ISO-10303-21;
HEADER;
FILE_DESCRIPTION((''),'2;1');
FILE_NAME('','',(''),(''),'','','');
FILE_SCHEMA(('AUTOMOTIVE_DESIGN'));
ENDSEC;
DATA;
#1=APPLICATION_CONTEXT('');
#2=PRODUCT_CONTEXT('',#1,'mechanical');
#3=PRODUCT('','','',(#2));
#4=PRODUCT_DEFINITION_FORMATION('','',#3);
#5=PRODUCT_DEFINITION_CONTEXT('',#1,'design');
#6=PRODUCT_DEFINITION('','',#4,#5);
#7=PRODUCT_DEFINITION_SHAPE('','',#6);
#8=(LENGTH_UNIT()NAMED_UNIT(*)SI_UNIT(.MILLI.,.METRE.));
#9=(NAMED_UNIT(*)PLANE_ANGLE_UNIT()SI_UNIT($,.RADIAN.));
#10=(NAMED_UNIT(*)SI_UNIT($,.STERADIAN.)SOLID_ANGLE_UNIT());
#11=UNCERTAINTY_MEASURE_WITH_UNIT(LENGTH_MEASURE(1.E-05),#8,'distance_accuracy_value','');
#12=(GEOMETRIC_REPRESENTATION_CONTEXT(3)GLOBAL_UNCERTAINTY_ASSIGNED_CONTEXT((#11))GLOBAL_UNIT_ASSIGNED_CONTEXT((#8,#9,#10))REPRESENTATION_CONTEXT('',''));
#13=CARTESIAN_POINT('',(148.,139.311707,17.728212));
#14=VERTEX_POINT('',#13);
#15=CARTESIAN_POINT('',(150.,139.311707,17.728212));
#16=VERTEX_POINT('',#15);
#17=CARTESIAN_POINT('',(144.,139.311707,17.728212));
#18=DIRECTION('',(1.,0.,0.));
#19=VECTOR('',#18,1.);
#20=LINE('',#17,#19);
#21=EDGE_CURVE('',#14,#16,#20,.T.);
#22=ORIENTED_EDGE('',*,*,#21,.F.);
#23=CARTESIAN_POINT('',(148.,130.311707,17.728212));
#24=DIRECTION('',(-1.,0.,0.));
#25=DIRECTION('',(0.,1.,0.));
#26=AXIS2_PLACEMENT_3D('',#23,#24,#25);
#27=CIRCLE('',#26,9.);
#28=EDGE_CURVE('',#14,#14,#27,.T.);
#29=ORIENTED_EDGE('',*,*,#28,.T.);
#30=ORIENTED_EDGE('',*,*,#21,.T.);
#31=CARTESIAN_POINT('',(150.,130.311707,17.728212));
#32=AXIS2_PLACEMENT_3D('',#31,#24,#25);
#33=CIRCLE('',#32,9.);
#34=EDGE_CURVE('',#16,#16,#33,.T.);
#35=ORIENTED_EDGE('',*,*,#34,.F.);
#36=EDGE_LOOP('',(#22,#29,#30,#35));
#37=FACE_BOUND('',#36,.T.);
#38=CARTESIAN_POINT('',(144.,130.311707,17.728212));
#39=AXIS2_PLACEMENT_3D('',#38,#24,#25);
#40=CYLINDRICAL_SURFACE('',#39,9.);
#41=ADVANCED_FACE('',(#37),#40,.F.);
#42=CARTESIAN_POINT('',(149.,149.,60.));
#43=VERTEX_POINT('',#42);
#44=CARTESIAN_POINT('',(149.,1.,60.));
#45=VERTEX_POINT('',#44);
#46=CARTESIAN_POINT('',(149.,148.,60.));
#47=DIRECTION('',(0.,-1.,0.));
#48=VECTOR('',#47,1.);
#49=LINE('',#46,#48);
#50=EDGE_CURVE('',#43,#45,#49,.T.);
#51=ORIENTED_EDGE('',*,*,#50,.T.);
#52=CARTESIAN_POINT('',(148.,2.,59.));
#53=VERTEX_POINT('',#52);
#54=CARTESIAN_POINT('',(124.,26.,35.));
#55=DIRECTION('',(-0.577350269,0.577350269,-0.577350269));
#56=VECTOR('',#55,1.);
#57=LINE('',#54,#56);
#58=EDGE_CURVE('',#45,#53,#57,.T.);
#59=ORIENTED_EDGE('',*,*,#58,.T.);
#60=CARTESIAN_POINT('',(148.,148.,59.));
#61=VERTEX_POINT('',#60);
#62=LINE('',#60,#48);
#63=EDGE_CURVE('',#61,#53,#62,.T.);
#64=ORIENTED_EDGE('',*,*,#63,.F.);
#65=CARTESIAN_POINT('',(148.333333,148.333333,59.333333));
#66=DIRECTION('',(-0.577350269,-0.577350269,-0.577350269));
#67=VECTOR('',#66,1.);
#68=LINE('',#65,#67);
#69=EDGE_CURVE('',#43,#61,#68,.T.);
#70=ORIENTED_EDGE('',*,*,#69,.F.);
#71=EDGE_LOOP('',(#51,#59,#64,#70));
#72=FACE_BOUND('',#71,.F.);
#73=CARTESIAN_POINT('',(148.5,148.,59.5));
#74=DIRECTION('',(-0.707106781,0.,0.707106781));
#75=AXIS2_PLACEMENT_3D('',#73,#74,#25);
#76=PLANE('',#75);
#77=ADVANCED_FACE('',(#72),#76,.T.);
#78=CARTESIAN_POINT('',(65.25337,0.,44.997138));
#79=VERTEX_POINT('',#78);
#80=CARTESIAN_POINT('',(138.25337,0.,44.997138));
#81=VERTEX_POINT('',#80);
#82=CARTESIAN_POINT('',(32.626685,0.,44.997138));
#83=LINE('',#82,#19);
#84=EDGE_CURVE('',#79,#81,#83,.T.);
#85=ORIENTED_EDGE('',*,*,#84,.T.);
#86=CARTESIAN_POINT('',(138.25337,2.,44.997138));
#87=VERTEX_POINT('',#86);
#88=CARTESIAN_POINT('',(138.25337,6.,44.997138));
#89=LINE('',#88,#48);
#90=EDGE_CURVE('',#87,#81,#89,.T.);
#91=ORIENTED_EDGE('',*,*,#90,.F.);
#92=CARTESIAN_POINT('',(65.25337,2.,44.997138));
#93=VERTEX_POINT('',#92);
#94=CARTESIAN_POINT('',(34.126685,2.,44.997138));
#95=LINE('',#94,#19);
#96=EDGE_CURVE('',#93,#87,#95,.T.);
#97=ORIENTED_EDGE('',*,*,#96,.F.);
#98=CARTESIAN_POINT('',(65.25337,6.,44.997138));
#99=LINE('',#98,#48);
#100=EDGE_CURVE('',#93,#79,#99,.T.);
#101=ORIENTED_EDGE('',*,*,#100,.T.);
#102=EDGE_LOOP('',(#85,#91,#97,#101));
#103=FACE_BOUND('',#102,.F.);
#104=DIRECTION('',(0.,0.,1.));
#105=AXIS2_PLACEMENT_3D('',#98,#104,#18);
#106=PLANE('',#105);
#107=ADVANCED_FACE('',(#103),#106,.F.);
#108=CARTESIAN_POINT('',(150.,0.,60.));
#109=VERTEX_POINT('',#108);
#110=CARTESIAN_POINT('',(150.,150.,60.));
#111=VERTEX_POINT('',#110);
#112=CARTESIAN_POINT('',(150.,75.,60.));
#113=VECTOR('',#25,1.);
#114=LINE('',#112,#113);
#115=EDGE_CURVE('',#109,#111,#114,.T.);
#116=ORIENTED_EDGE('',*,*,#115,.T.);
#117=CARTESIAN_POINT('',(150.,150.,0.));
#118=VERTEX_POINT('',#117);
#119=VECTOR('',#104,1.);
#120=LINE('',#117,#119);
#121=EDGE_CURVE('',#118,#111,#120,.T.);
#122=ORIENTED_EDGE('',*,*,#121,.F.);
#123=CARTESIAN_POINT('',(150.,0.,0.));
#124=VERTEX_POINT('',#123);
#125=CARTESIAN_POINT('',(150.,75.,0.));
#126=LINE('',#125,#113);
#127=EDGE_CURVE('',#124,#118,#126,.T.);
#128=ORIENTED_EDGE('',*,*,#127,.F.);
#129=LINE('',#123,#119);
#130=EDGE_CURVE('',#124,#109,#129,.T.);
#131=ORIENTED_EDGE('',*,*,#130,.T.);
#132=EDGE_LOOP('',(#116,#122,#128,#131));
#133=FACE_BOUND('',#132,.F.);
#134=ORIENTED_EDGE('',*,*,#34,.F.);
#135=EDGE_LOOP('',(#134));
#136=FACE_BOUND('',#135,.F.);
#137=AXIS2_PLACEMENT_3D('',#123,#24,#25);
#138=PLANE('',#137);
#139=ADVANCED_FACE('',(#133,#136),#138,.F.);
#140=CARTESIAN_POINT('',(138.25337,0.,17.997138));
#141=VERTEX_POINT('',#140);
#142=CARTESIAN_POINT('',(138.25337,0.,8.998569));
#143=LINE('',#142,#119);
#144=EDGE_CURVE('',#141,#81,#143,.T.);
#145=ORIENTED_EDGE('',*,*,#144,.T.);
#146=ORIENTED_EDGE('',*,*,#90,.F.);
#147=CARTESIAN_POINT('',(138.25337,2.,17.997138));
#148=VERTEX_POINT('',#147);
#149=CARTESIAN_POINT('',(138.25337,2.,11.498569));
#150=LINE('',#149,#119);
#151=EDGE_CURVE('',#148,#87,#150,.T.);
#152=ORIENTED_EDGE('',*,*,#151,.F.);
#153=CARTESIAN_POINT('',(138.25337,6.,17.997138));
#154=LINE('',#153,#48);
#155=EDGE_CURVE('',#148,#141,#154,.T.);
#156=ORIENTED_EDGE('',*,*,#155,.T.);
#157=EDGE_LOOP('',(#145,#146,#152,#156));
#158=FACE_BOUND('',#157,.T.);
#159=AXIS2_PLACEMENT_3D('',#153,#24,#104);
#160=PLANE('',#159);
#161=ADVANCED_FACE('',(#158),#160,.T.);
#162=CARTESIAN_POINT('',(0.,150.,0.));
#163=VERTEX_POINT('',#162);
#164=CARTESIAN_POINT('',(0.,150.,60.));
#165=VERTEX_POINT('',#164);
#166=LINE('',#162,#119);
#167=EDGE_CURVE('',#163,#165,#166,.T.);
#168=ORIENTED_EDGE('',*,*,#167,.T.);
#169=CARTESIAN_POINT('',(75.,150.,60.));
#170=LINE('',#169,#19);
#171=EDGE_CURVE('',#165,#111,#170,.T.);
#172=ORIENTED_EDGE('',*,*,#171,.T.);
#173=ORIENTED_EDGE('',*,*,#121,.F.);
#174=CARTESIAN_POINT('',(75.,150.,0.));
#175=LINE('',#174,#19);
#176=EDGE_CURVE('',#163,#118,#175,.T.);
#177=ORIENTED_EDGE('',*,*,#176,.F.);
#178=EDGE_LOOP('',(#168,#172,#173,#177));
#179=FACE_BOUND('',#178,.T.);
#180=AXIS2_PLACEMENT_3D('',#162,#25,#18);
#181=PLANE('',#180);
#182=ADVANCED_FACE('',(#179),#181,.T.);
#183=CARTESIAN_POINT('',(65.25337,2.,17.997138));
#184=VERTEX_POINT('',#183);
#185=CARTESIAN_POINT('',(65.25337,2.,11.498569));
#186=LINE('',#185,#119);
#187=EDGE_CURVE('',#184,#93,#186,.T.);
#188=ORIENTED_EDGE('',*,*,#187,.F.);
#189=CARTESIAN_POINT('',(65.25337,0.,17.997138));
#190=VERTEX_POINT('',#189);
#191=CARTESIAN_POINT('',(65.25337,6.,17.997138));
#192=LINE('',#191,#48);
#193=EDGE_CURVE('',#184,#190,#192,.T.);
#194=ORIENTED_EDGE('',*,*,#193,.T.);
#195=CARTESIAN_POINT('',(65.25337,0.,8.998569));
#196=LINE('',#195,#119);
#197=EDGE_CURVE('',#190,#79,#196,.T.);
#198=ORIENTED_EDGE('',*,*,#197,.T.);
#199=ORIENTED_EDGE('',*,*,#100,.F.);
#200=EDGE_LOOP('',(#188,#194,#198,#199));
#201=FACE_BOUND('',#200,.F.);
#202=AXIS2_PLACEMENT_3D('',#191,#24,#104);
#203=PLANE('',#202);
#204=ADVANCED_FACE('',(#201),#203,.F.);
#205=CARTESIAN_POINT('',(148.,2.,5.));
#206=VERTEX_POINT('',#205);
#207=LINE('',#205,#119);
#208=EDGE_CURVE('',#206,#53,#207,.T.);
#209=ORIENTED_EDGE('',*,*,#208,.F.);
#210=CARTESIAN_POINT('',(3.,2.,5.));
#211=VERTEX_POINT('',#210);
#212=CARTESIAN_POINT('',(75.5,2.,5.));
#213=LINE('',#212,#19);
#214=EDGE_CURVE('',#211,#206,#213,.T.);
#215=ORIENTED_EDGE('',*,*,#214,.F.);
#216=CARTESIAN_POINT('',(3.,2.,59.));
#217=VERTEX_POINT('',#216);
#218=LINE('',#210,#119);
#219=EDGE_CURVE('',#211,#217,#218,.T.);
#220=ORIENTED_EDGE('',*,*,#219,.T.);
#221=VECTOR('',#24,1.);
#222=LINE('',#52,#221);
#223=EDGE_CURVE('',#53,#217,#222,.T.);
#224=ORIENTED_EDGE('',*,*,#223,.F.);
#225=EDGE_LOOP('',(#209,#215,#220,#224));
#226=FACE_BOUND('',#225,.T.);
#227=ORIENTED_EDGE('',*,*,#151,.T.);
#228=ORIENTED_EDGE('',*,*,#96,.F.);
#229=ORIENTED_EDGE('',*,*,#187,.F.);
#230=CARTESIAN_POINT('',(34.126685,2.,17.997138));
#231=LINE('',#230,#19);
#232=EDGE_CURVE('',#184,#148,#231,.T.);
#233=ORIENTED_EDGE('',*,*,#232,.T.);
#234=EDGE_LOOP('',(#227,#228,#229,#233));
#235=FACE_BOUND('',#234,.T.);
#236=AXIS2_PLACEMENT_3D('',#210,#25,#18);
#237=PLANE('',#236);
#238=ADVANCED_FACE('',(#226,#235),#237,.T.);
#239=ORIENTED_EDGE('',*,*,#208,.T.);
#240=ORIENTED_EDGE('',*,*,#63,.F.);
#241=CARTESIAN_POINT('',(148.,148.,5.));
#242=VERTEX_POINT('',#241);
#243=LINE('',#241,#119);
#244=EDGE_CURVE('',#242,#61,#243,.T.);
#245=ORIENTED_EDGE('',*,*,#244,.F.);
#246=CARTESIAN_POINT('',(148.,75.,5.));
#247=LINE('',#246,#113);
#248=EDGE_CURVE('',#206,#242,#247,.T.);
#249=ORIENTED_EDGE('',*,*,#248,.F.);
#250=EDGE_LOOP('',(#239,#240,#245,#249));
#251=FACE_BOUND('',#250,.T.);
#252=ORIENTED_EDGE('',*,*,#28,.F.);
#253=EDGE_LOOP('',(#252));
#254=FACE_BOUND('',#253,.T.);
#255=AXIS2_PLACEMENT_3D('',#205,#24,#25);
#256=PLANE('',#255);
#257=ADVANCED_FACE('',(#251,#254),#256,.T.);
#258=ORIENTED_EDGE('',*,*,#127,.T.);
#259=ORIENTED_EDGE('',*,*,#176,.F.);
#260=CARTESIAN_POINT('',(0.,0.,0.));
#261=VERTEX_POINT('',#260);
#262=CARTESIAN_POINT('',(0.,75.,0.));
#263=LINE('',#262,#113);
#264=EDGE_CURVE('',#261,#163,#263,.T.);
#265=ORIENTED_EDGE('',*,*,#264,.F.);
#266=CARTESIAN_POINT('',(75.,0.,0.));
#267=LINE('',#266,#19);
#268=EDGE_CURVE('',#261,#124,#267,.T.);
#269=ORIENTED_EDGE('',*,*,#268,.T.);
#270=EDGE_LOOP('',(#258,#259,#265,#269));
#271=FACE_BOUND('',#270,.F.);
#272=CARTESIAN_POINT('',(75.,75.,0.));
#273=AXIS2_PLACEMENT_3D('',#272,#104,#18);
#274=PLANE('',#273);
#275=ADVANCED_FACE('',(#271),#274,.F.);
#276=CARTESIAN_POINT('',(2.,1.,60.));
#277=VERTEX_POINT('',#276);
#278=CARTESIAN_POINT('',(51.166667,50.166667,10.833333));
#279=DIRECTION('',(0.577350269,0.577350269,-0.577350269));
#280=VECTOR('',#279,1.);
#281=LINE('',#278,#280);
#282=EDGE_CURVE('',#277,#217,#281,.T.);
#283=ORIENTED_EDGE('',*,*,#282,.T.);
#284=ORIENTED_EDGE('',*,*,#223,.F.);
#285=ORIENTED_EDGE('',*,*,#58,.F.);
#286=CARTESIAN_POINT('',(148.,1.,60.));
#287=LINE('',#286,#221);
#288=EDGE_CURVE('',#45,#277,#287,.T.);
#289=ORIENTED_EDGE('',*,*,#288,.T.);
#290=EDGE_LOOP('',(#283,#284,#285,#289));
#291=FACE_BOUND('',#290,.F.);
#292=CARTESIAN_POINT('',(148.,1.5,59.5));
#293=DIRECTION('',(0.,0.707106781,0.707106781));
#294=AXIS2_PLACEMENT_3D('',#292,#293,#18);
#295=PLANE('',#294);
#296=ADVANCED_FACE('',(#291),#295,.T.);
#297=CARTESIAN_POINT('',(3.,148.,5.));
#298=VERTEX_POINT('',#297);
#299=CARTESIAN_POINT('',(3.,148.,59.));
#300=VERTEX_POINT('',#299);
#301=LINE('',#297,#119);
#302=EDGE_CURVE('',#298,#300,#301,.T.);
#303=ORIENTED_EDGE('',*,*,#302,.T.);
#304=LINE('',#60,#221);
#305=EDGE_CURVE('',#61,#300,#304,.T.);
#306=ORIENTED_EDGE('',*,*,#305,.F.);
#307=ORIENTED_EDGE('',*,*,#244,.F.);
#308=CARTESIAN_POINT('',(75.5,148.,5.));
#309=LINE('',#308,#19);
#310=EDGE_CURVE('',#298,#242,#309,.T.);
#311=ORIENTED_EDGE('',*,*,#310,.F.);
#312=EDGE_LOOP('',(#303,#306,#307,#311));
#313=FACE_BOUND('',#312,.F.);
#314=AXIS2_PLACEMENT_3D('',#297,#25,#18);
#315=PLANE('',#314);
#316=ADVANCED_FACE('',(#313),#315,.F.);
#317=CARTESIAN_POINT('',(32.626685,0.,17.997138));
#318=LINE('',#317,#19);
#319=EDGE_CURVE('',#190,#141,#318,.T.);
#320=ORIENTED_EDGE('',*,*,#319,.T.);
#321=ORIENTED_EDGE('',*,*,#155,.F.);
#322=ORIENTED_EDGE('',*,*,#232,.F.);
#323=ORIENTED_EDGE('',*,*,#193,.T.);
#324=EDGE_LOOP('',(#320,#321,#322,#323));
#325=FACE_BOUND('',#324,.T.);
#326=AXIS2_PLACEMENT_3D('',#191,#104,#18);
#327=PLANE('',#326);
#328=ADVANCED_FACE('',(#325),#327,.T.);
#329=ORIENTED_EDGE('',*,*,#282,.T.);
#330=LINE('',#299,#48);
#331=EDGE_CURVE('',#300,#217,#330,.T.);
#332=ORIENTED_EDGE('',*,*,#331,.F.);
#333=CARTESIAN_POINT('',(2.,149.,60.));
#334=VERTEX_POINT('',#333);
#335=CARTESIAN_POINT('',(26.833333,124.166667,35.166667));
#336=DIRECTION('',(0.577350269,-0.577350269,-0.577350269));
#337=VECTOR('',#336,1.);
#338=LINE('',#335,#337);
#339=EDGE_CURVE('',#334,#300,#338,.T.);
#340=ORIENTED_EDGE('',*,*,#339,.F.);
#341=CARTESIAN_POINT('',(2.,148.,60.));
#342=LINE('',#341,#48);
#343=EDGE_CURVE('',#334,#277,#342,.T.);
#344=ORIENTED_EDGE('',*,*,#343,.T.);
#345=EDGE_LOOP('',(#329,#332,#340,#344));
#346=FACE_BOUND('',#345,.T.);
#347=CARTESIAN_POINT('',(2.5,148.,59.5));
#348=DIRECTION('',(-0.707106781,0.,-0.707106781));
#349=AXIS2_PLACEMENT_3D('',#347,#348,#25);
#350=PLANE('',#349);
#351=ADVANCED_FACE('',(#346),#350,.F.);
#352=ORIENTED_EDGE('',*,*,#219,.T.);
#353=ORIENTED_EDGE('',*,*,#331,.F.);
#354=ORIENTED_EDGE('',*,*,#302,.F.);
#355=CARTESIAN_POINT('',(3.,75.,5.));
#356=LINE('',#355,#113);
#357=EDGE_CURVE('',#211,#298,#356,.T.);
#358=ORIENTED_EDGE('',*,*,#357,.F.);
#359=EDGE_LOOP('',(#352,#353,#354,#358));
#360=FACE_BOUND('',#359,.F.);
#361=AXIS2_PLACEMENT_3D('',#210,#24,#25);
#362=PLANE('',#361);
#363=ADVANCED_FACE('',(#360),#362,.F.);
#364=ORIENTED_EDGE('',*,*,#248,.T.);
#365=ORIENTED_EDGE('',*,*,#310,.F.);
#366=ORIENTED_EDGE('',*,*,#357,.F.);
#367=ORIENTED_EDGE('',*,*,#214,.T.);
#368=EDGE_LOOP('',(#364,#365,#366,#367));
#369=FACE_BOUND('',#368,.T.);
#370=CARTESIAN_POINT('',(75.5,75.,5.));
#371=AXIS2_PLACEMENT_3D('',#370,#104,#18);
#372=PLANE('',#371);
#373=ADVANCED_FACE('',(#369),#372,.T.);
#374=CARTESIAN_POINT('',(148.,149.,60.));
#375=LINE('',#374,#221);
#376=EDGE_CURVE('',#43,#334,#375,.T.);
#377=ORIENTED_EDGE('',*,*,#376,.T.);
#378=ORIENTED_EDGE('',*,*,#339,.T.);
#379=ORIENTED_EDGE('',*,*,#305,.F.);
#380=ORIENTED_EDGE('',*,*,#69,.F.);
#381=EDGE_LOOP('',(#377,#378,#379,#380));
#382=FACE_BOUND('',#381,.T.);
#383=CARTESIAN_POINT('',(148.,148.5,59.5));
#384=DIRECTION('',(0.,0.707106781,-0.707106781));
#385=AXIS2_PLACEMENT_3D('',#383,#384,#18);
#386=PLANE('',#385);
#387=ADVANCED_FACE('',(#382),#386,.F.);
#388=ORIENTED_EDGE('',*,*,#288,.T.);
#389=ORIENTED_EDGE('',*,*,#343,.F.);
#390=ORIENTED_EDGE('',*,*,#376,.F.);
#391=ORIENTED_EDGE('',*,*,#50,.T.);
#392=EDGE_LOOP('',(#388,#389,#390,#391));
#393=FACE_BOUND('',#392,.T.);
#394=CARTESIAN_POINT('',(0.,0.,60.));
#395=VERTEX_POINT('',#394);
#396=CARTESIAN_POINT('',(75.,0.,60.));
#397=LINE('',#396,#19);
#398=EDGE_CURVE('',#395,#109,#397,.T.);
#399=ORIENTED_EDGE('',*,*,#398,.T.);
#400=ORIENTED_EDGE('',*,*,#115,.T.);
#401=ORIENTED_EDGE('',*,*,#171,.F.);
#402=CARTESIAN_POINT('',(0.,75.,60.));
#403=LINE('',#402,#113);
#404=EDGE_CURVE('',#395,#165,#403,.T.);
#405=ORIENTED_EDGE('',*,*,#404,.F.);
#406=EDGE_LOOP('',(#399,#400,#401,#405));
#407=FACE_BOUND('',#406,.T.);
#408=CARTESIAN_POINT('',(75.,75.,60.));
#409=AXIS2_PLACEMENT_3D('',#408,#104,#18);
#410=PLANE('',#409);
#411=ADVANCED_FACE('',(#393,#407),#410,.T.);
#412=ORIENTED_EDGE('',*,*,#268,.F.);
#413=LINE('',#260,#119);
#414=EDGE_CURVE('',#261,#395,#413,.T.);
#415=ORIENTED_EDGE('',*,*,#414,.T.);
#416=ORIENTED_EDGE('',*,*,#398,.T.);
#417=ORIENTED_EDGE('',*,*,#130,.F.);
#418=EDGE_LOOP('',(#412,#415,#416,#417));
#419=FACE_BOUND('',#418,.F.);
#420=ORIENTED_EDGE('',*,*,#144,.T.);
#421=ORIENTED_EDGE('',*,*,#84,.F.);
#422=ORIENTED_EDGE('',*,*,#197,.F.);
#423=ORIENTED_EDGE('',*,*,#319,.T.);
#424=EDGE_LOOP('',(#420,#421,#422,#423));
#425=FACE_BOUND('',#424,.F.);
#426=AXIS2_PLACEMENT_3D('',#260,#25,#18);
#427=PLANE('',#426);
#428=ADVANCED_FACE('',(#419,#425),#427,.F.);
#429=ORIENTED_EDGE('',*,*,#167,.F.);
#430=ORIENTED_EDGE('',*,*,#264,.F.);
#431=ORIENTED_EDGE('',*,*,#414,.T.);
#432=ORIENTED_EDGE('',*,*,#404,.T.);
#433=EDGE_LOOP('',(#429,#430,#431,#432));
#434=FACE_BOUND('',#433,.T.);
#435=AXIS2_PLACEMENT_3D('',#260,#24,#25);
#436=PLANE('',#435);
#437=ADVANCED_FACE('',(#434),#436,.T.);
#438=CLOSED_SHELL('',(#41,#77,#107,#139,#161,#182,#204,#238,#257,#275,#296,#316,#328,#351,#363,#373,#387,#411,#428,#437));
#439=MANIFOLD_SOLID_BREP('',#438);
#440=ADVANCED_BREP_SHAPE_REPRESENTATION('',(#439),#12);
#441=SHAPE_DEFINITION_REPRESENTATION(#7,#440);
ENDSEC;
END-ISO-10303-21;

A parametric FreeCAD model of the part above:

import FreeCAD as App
import Part
import Sketcher
from FreeCAD import Vector


def edges_at(feature, points):
    """Names of the edges that pass closest to the given points."""
    edges = feature.Shape.Edges
    near = lambda p: min(range(len(edges)), key=lambda i: edges[i].distToShape(Part.Vertex(*p))[0])
    return sorted({f"Edge{near(p) + 1}" for p in points})

doc = App.newDocument("Part")
body = doc.addObject("PartDesign::Body", "Body")

# Sketch on YZ plane
sketch1 = body.newObject("Sketcher::SketchObject", "Sketch")
sketch1.AttachmentSupport = (doc.getObject("YZ_Plane"), [""])
sketch1.MapMode = "FlatFace"
sketch1.AttachmentOffset = App.Placement(Vector(0, 0, 150), App.Rotation())
sketch1.addGeometry(Part.Circle(Vector(129, 13, 0), Vector(0, 0, 1), 9), False)
sketch1.addConstraint(Sketcher.Constraint("Diameter", 0, 18.0))
sketch1.addConstraint(Sketcher.Constraint("DistanceY", -1, 1, 0, 3, 12.728212))
sketch1.addConstraint(Sketcher.Constraint("DistanceX", -1, 1, 0, 3, 129.311707))
pad1 = body.newObject("PartDesign::Pad", "Pad")
pad1.Profile = sketch1
pad1.Length = 10
body2 = doc.addObject("PartDesign::Body", "Body001")
doc.recompute()

body.Placement = App.Placement(Vector(-6, 1, 5), App.Rotation(Vector(0, 0, 1), 0))
boolean = body2.newObject("PartDesign::Boolean", "Boolean")
boolean.Type = "Fuse"
boolean.addObjects([body])
body3 = doc.addObject("PartDesign::Body", "Body002")

# Sketch on XY plane
sketch2 = body3.newObject("Sketcher::SketchObject", "Sketch001")
sketch2.AttachmentSupport = (doc.getObject("XY_Plane002"), [""])
sketch2.MapMode = "FlatFace"
sketch2.addGeometry(Part.LineSegment(Vector(65, 45, 0), Vector(65, 18, 0)), False)
sketch2.addGeometry(Part.LineSegment(Vector(65, 18, 0), Vector(138, 18, 0)), False)
sketch2.addGeometry(Part.LineSegment(Vector(138, 18, 0), Vector(138, 45, 0)), False)
sketch2.addGeometry(Part.LineSegment(Vector(138, 45, 0), Vector(65, 45, 0)), False)
sketch2.addConstraint(Sketcher.Constraint("Coincident", 0, 2, 1, 1))
sketch2.addConstraint(Sketcher.Constraint("Coincident", 1, 2, 2, 1))
sketch2.addConstraint(Sketcher.Constraint("Coincident", 2, 2, 3, 1))
sketch2.addConstraint(Sketcher.Constraint("Coincident", 3, 2, 0, 1))
sketch2.addConstraint(Sketcher.Constraint("Vertical", 0))
sketch2.addConstraint(Sketcher.Constraint("Horizontal", 1))
sketch2.addConstraint(Sketcher.Constraint("Vertical", 2))
sketch2.addConstraint(Sketcher.Constraint("Horizontal", 3))
sketch2.addConstraint(Sketcher.Constraint("DistanceX", 1, 1, 1, 2, 73.0))
sketch2.addConstraint(Sketcher.Constraint("DistanceY", 0, 2, 0, 1, 27.0))
sketch2.addConstraint(Sketcher.Constraint("DistanceX", -1, 1, 0, 2, 65.25337))
sketch2.addConstraint(Sketcher.Constraint("DistanceY", -1, 1, 0, 2, 17.997138))
pad2 = body3.newObject("PartDesign::Pad", "Pad001")
pad2.Profile = sketch2
pad2.Length = 10
body4 = doc.addObject("PartDesign::Body", "Body003")
doc.recompute()

body3.Placement = App.Placement(Vector(0, 0, 0), App.Rotation(Vector(1, 0, 0), 90))
boolean2 = body4.newObject("PartDesign::Boolean", "Boolean001")
boolean2.Type = "Fuse"
boolean2.addObjects([body3])
body5 = doc.addObject("PartDesign::Body", "Body004")
body5.AllowCompound = True
doc.recompute()

body4.Placement = App.Placement(Vector(0, 6, 0), App.Rotation(Vector(0, 0, 1), 0))
boolean3 = body5.newObject("PartDesign::Boolean", "Boolean002")
boolean3.Type = "Fuse"
boolean3.addObjects([body4])
doc.recompute()

boolean4 = body5.newObject("PartDesign::Boolean", "Boolean003")
boolean4.Type = "Fuse"
boolean4.addObjects([body2])
body6 = doc.addObject("PartDesign::Body", "Body005")

# Sketch on XY plane
sketch3 = body6.newObject("Sketcher::SketchObject", "Sketch002")
sketch3.AttachmentSupport = (doc.getObject("XY_Plane005"), [""])
sketch3.MapMode = "FlatFace"
sketch3.AttachmentOffset = App.Placement(Vector(0, 0, 5), App.Rotation())
sketch3.addGeometry(Part.LineSegment(Vector(3, 148, 0), Vector(3, 2, 0)), False)
sketch3.addGeometry(Part.LineSegment(Vector(3, 2, 0), Vector(148, 2, 0)), False)
sketch3.addGeometry(Part.LineSegment(Vector(148, 2, 0), Vector(148, 148, 0)), False)
sketch3.addGeometry(Part.LineSegment(Vector(148, 148, 0), Vector(3, 148, 0)), False)
sketch3.addConstraint(Sketcher.Constraint("Coincident", 0, 2, 1, 1))
sketch3.addConstraint(Sketcher.Constraint("Coincident", 1, 2, 2, 1))
sketch3.addConstraint(Sketcher.Constraint("Coincident", 2, 2, 3, 1))
sketch3.addConstraint(Sketcher.Constraint("Coincident", 3, 2, 0, 1))
sketch3.addConstraint(Sketcher.Constraint("Vertical", 0))
sketch3.addConstraint(Sketcher.Constraint("Horizontal", 1))
sketch3.addConstraint(Sketcher.Constraint("Vertical", 2))
sketch3.addConstraint(Sketcher.Constraint("Horizontal", 3))
sketch3.addConstraint(Sketcher.Constraint("DistanceX", 1, 1, 1, 2, 145.0))
sketch3.addConstraint(Sketcher.Constraint("DistanceY", 0, 2, 0, 1, 146.0))
sketch3.addConstraint(Sketcher.Constraint("DistanceX", -1, 1, 0, 2, 3.0))
sketch3.addConstraint(Sketcher.Constraint("DistanceY", -1, 1, 0, 2, 2.0))
pad3 = body6.newObject("PartDesign::Pad", "Pad002")
pad3.Profile = sketch3
pad3.Length = 57
body7 = doc.addObject("PartDesign::Body", "Body006")

# Sketch on XY plane
sketch4 = body7.newObject("Sketcher::SketchObject", "Sketch003")
sketch4.AttachmentSupport = (doc.getObject("XY_Plane006"), [""])
sketch4.MapMode = "FlatFace"
sketch4.addGeometry(Part.LineSegment(Vector(0, 150, 0), Vector(0, 0, 0)), False)
sketch4.addGeometry(Part.LineSegment(Vector(0, 0, 0), Vector(150, 0, 0)), False)
sketch4.addGeometry(Part.LineSegment(Vector(150, 0, 0), Vector(150, 150, 0)), False)
sketch4.addGeometry(Part.LineSegment(Vector(150, 150, 0), Vector(0, 150, 0)), False)
sketch4.addConstraint(Sketcher.Constraint("Coincident", 0, 2, 1, 1))
sketch4.addConstraint(Sketcher.Constraint("Coincident", 1, 2, 2, 1))
sketch4.addConstraint(Sketcher.Constraint("Coincident", 2, 2, 3, 1))
sketch4.addConstraint(Sketcher.Constraint("Coincident", 3, 2, 0, 1))
sketch4.addConstraint(Sketcher.Constraint("Vertical", 0))
sketch4.addConstraint(Sketcher.Constraint("Horizontal", 1))
sketch4.addConstraint(Sketcher.Constraint("Vertical", 2))
sketch4.addConstraint(Sketcher.Constraint("Horizontal", 3))
sketch4.addConstraint(Sketcher.Constraint("Coincident", 0, 2, -1, 1))
sketch4.addConstraint(Sketcher.Constraint("Equal", 3, 0))
sketch4.addConstraint(Sketcher.Constraint("DistanceX", 1, 1, 1, 2, 150.0))
pad4 = body7.newObject("PartDesign::Pad", "Pad003")
pad4.Profile = sketch4
pad4.Length = 60
doc.recompute()

boolean5 = body7.newObject("PartDesign::Boolean", "Boolean004")
boolean5.Type = "Cut"
boolean5.addObjects([body6])
doc.recompute()

boolean6 = body7.newObject("PartDesign::Boolean", "Boolean005")
boolean6.Type = "Cut"
boolean6.addObjects([body5])
doc.recompute()

chamfer = body7.newObject("PartDesign::Chamfer", "Chamfer")
chamfer.Base = (boolean6, edges_at(boolean6, [
    (75.5, 2, 60),
    (148, 75, 60),
    (75.5, 148, 60),
    (3, 75, 60),
]))
chamfer.Size = 1

doc.recompute()
